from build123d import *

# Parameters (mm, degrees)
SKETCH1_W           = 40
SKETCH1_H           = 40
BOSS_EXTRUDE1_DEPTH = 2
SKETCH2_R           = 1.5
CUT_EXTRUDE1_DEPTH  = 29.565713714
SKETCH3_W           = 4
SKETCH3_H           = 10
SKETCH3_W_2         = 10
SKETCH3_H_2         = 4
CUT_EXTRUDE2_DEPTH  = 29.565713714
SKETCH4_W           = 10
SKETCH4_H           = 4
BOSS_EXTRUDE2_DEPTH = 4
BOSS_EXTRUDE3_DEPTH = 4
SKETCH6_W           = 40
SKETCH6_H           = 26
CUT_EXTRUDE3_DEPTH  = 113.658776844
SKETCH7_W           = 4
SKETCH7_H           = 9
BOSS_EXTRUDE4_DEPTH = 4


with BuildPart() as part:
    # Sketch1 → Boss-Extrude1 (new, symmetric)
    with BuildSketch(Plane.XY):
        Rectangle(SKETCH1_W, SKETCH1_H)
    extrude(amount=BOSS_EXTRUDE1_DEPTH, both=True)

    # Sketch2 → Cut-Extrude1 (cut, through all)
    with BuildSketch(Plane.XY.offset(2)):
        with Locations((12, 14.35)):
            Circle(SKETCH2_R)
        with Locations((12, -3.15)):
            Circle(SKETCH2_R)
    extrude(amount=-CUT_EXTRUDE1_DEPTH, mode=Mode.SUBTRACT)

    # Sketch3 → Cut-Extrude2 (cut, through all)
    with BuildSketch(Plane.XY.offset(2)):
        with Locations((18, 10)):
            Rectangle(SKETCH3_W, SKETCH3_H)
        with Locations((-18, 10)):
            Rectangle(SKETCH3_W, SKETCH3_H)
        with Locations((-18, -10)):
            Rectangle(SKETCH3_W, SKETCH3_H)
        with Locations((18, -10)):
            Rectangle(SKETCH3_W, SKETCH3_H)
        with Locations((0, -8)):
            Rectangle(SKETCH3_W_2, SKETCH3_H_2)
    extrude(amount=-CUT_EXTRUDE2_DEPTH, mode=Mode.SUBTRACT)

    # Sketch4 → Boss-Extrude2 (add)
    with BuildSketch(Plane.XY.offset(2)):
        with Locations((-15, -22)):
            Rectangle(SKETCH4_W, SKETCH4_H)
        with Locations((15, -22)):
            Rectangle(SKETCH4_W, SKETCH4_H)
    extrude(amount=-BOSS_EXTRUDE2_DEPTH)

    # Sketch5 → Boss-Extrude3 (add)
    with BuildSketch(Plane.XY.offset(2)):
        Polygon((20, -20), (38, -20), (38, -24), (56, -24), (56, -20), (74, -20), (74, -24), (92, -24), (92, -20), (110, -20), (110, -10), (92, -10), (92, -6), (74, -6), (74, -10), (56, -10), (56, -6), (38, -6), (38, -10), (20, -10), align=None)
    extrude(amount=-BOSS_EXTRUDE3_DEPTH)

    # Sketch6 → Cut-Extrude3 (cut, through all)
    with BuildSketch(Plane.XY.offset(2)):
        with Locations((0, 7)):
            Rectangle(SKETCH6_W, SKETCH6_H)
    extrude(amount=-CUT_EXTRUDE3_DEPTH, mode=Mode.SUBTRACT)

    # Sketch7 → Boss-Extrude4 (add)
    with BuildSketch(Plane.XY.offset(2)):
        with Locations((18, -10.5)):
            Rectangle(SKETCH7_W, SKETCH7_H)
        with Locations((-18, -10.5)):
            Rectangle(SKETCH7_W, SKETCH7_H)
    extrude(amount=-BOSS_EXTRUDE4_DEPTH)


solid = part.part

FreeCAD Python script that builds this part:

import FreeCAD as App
import Part
import Sketcher


def add_polygon(sketch, points):
    """Adds a closed chain of lines whose ends are joined by coincident constraints."""
    first, n = sketch.GeometryCount, len(points)
    for a, b in zip(points, points[1:] + points[:1]):
        sketch.addGeometry(Part.LineSegment(App.Vector(*a, 0), App.Vector(*b, 0)), False)
    for i in range(n):
        sketch.addConstraint(Sketcher.Constraint("Coincident", first + i, 2, first + (i + 1) % n, 1))

doc = App.newDocument("Part")
body = doc.addObject("PartDesign::Body", "Body")

sketch1 = body.newObject("Sketcher::SketchObject", "Sketch")
sketch1.AttachmentSupport = (doc.getObject("XY_Plane"), [""])
sketch1.MapMode = "FlatFace"
add_polygon(sketch1, [(-20, 20), (-20, -20), (20, -20), (20, 20)])
sketch1.addConstraint(Sketcher.Constraint("Vertical", 0))
sketch1.addConstraint(Sketcher.Constraint("Horizontal", 1))
sketch1.addConstraint(Sketcher.Constraint("Vertical", 2))
sketch1.addConstraint(Sketcher.Constraint("Horizontal", 3))
sketch1.addConstraint(Sketcher.Constraint("Symmetric", 0, 2, 2, 2, -1, 1))
sketch1.addConstraint(Sketcher.Constraint("Equal", 3, 0))
sketch1.addConstraint(Sketcher.Constraint("DistanceX", 1, 1, 1, 2, 40.0))
pad1 = body.newObject("PartDesign::Pad", "Pad")
pad1.Profile = sketch1
pad1.Length = 4
pad1.Midplane = True

sketch2 = body.newObject("Sketcher::SketchObject", "Sketch001")
sketch2.AttachmentSupport = (doc.getObject("XY_Plane"), [""])
sketch2.MapMode = "FlatFace"
sketch2.AttachmentOffset = App.Placement(App.Vector(0, 0, 2), App.Rotation())
sketch2.addGeometry(Part.Circle(App.Vector(12, 14.3, 0), App.Vector(0, 0, 1), 1.5), False)
sketch2.addGeometry(Part.Circle(App.Vector(12, -3.1, 0), App.Vector(0, 0, 1), 1.5), False)
sketch2.addConstraint(Sketcher.Constraint("Equal", 0, 1))
sketch2.addConstraint(Sketcher.Constraint("Vertical", 0, 3, 1, 3))
sketch2.addConstraint(Sketcher.Constraint("Diameter", 0, 3.0))
sketch2.addConstraint(Sketcher.Constraint("DistanceX", -1, 1, 0, 3, 12.0))
sketch2.addConstraint(Sketcher.Constraint("DistanceY", 1, 3, 0, 3, 17.5))
sketch2.addConstraint(Sketcher.Constraint("DistanceY", -1, 1, 0, 3, 14.35))
pocket1 = body.newObject("PartDesign::Pocket", "Pocket")
pocket1.Profile = sketch2
pocket1.Type = "ThroughAll"

sketch3 = body.newObject("Sketcher::SketchObject", "Sketch002")
sketch3.AttachmentSupport = (doc.getObject("XY_Plane"), [""])
sketch3.MapMode = "FlatFace"
sketch3.AttachmentOffset = App.Placement(App.Vector(0, 0, 2), App.Rotation())
add_polygon(sketch3, [(16, 15), (16, 5), (20, 5), (20, 15)])
add_polygon(sketch3, [(-20, 15), (-20, 5), (-16, 5), (-16, 15)])
add_polygon(sketch3, [(-20, -5), (-20, -15), (-16, -15), (-16, -5)])
add_polygon(sketch3, [(16, -5), (16, -15), (20, -15), (20, -5)])
add_polygon(sketch3, [(-5, -6), (-5, -10), (5, -10), (5, -6)])
sketch3.addConstraint(Sketcher.Constraint("Vertical", 0))
sketch3.addConstraint(Sketcher.Constraint("Horizontal", 1))
sketch3.addConstraint(Sketcher.Constraint("Vertical", 2))
sketch3.addConstraint(Sketcher.Constraint("Horizontal", 3))
sketch3.addConstraint(Sketcher.Constraint("Vertical", 4))
sketch3.addConstraint(Sketcher.Constraint("Horizontal", 5))
sketch3.addConstraint(Sketcher.Constraint("Vertical", 6))
sketch3.addConstraint(Sketcher.Constraint("Horizontal", 7))
sketch3.addConstraint(Sketcher.Constraint("Vertical", 8))
sketch3.addConstraint(Sketcher.Constraint("Horizontal", 9))
sketch3.addConstraint(Sketcher.Constraint("Vertical", 10))
sketch3.addConstraint(Sketcher.Constraint("Horizontal", 11))
sketch3.addConstraint(Sketcher.Constraint("Vertical", 12))
sketch3.addConstraint(Sketcher.Constraint("Horizontal", 13))
sketch3.addConstraint(Sketcher.Constraint("Vertical", 14))
sketch3.addConstraint(Sketcher.Constraint("Horizontal", 15))
sketch3.addConstraint(Sketcher.Constraint("Vertical", 16))
sketch3.addConstraint(Sketcher.Constraint("Horizontal", 17))
sketch3.addConstraint(Sketcher.Constraint("Vertical", 18))
sketch3.addConstraint(Sketcher.Constraint("Horizontal", 19))
sketch3.addConstraint(Sketcher.Constraint("Symmetric", 2, 2, 8, 2, -1, 1))
sketch3.addConstraint(Sketcher.Constraint("Symmetric", 0, 2, 10, 2, -1, 1))
sketch3.addConstraint(Sketcher.Constraint("Symmetric", 6, 2, 12, 2, -1, 1))
sketch3.addConstraint(Sketcher.Constraint("Symmetric", 4, 2, 14, 2, -1, 1))
sketch3.addConstraint(Sketcher.Constraint("Symmetric", 1, 2, 4, 2, -2))
sketch3.addConstraint(Sketcher.Constraint("Symmetric", 3, 2, 6, 2, -2))
sketch3.addConstraint(Sketcher.Constraint("Equal", 19, 0))
sketch3.addConstraint(Sketcher.Constraint("Equal", 15, 16))
sketch3.addConstraint(Sketcher.Constraint("DistanceX", 1, 1, 1, 2, 4.0))
sketch3.addConstraint(Sketcher.Constraint("DistanceX", 17, 1, 17, 2, 10.0))
sketch3.addConstraint(Sketcher.Constraint("DistanceX", -1, 1, 0, 2, 16.0))
sketch3.addConstraint(Sketcher.Constraint("DistanceY", -1, 1, 0, 2, 5.0))
sketch3.addConstraint(Sketcher.Constraint("DistanceX", 16, 2, -1, 1, 5.0))
sketch3.addConstraint(Sketcher.Constraint("DistanceY", 16, 2, -1, 1, 10.0))
pocket2 = body.newObject("PartDesign::Pocket", "Pocket001")
pocket2.Profile = sketch3
pocket2.Type = "ThroughAll"

sketch4 = body.newObject("Sketcher::SketchObject", "Sketch003")
sketch4.AttachmentSupport = (doc.getObject("XY_Plane"), [""])
sketch4.MapMode = "FlatFace"
sketch4.AttachmentOffset = App.Placement(App.Vector(0, 0, 2), App.Rotation())
add_polygon(sketch4, [(-20, -20), (-20, -24), (-10, -24), (-10, -20)])
add_polygon(sketch4, [(10, -20), (10, -24), (20, -24), (20, -20)])
sketch4.addConstraint(Sketcher.Constraint("Vertical", 0))
sketch4.addConstraint(Sketcher.Constraint("Horizontal", 1))
sketch4.addConstraint(Sketcher.Constraint("Vertical", 2))
sketch4.addConstraint(Sketcher.Constraint("Horizontal", 3))
sketch4.addConstraint(Sketcher.Constraint("Vertical", 4))
sketch4.addConstraint(Sketcher.Constraint("Horizontal", 5))
sketch4.addConstraint(Sketcher.Constraint("Vertical", 6))
sketch4.addConstraint(Sketcher.Constraint("Horizontal", 7))
sketch4.addConstraint(Sketcher.Constraint("Symmetric", 1, 2, 4, 2, -2))
sketch4.addConstraint(Sketcher.Constraint("Symmetric", 3, 2, 6, 2, -2))
sketch4.addConstraint(Sketcher.Constraint("DistanceX", 1, 1, 1, 2, 10.0))
sketch4.addConstraint(Sketcher.Constraint("DistanceY", 0, 2, 0, 1, 4.0))
sketch4.addConstraint(Sketcher.Constraint("DistanceX", 0, 2, -1, 1, 20.0))
sketch4.addConstraint(Sketcher.Constraint("DistanceY", 0, 2, -1, 1, 24.0))
pad2 = body.newObject("PartDesign::Pad", "Pad001")
pad2.Profile = sketch4
pad2.Length = 4
pad2.Reversed = True

sketch5 = body.newObject("Sketcher::SketchObject", "Sketch004")
sketch5.AttachmentSupport = (doc.getObject("XY_Plane"), [""])
sketch5.MapMode = "FlatFace"
sketch5.AttachmentOffset = App.Placement(App.Vector(0, 0, 2), App.Rotation())
add_polygon(sketch5, [(20, -20), (38, -20), (38, -24), (56, -24), (56, -20), (74, -20), (74, -24), (92, -24), (92, -20), (110, -20), (110, -10), (92, -10), (92, -6), (74, -6), (74, -10), (56, -10), (56, -6), (38, -6), (38, -10), (20, -10)])
sketch5.addConstraint(Sketcher.Constraint("Horizontal", 0))
sketch5.addConstraint(Sketcher.Constraint("Vertical", 1))
sketch5.addConstraint(Sketcher.Constraint("Horizontal", 2))
sketch5.addConstraint(Sketcher.Constraint("Vertical", 3))
sketch5.addConstraint(Sketcher.Constraint("Horizontal", 4))
sketch5.addConstraint(Sketcher.Constraint("Vertical", 5))
sketch5.addConstraint(Sketcher.Constraint("Horizontal", 6))
sketch5.addConstraint(Sketcher.Constraint("Vertical", 7))
sketch5.addConstraint(Sketcher.Constraint("Horizontal", 8))
sketch5.addConstraint(Sketcher.Constraint("Vertical", 9))
sketch5.addConstraint(Sketcher.Constraint("Horizontal", 10))
sketch5.addConstraint(Sketcher.Constraint("Vertical", 11))
sketch5.addConstraint(Sketcher.Constraint("Horizontal", 12))
sketch5.addConstraint(Sketcher.Constraint("Vertical", 13))
sketch5.addConstraint(Sketcher.Constraint("Horizontal", 14))
sketch5.addConstraint(Sketcher.Constraint("Vertical", 15))
sketch5.addConstraint(Sketcher.Constraint("Horizontal", 16))
sketch5.addConstraint(Sketcher.Constraint("Vertical", 17))
sketch5.addConstraint(Sketcher.Constraint("Horizontal", 18))
sketch5.addConstraint(Sketcher.Constraint("Vertical", 19))
sketch5.addConstraint(Sketcher.Constraint("Horizontal", 0, 2, 3, 2))
sketch5.addConstraint(Sketcher.Constraint("Horizontal", 2, 2, 5, 2))
sketch5.addConstraint(Sketcher.Constraint("Horizontal", 4, 2, 7, 2))
sketch5.addConstraint(Sketcher.Constraint("Horizontal", 10, 2, 13, 2))
sketch5.addConstraint(Sketcher.Constraint("Horizontal", 12, 2, 15, 2))
sketch5.addConstraint(Sketcher.Constraint("Horizontal", 14, 2, 17, 2))
sketch5.addConstraint(Sketcher.Constraint("Vertical", 7, 2, 10, 2))
sketch5.addConstraint(Sketcher.Constraint("Vertical", 5, 2, 12, 2))
sketch5.addConstraint(Sketcher.Constraint("Vertical", 3, 2, 14, 2))
sketch5.addConstraint(Sketcher.Constraint("Vertical", 1, 2, 16, 2))
sketch5.addConstraint(Sketcher.Constraint("Equal", 0, 2))
sketch5.addConstraint(Sketcher.Constraint("Equal", 2, 4))
sketch5.addConstraint(Sketcher.Constraint("Equal", 4, 6))
sketch5.addConstraint(Sketcher.Constraint("Equal", 6, 8))
sketch5.addConstraint(Sketcher.Constraint("Equal", 7, 11))
sketch5.addConstraint(Sketcher.Constraint("DistanceX", 0, 1, 0, 2, 18.0))
sketch5.addConstraint(Sketcher.Constraint("DistanceY", 1, 2, 1, 1, 4.0))
sketch5.addConstraint(Sketcher.Constraint("DistanceY", 9, 1, 9, 2, 10.0))
sketch5.addConstraint(Sketcher.Constraint("DistanceX", -1, 1, 0, 2, 38.0))
sketch5.addConstraint(Sketcher.Constraint("DistanceY", 0, 2, -1, 1, 20.0))
pad3 = body.newObject("PartDesign::Pad", "Pad002")
pad3.Profile = sketch5
pad3.Length = 4
pad3.Reversed = True

sketch6 = body.newObject("Sketcher::SketchObject", "Sketch005")
sketch6.AttachmentSupport = (doc.getObject("XY_Plane"), [""])
sketch6.MapMode = "FlatFace"
sketch6.AttachmentOffset = App.Placement(App.Vector(0, 0, 2), App.Rotation())
add_polygon(sketch6, [(-20, 20), (-20, -6), (20, -6), (20, 20)])
sketch6.addConstraint(Sketcher.Constraint("Vertical", 0))
sketch6.addConstraint(Sketcher.Constraint("Horizontal", 1))
sketch6.addConstraint(Sketcher.Constraint("Vertical", 2))
sketch6.addConstraint(Sketcher.Constraint("Horizontal", 3))
sketch6.addConstraint(Sketcher.Constraint("DistanceX", 1, 1, 1, 2, 40.0))
sketch6.addConstraint(Sketcher.Constraint("DistanceY", 0, 2, 0, 1, 26.0))
sketch6.addConstraint(Sketcher.Constraint("DistanceX", 0, 2, -1, 1, 20.0))
sketch6.addConstraint(Sketcher.Constraint("DistanceY", 0, 2, -1, 1, 6.0))
pocket3 = body.newObject("PartDesign::Pocket", "Pocket002")
pocket3.Profile = sketch6
pocket3.Type = "ThroughAll"

sketch7 = body.newObject("Sketcher::SketchObject", "Sketch006")
sketch7.AttachmentSupport = (doc.getObject("XY_Plane"), [""])
sketch7.MapMode = "FlatFace"
sketch7.AttachmentOffset = App.Placement(App.Vector(0, 0, 2), App.Rotation())
add_polygon(sketch7, [(16, -6), (16, -15), (20, -15), (20, -6)])
add_polygon(sketch7, [(-20, -6), (-20, -15), (-16, -15), (-16, -6)])
sketch7.addConstraint(Sketcher.Constraint("Vertical", 0))
sketch7.addConstraint(Sketcher.Constraint("Horizontal", 1))
sketch7.addConstraint(Sketcher.Constraint("Vertical", 2))
sketch7.addConstraint(Sketcher.Constraint("Horizontal", 3))
sketch7.addConstraint(Sketcher.Constraint("Vertical", 4))
sketch7.addConstraint(Sketcher.Constraint("Horizontal", 5))
sketch7.addConstraint(Sketcher.Constraint("Vertical", 6))
sketch7.addConstraint(Sketcher.Constraint("Horizontal", 7))
sketch7.addConstraint(Sketcher.Constraint("Symmetric", 1, 2, 4, 2, -2))
sketch7.addConstraint(Sketcher.Constraint("Symmetric", 3, 2, 6, 2, -2))
sketch7.addConstraint(Sketcher.Constraint("DistanceX", 1, 1, 1, 2, 4.0))
sketch7.addConstraint(Sketcher.Constraint("DistanceY", 0, 2, 0, 1, 9.0))
sketch7.addConstraint(Sketcher.Constraint("DistanceX", -1, 1, 0, 2, 16.0))
sketch7.addConstraint(Sketcher.Constraint("DistanceY", 0, 2, -1, 1, 15.0))
pad4 = body.newObject("PartDesign::Pad", "Pad003")
pad4.Profile = sketch7
pad4.Length = 4
pad4.Reversed = True

doc.recompute()
